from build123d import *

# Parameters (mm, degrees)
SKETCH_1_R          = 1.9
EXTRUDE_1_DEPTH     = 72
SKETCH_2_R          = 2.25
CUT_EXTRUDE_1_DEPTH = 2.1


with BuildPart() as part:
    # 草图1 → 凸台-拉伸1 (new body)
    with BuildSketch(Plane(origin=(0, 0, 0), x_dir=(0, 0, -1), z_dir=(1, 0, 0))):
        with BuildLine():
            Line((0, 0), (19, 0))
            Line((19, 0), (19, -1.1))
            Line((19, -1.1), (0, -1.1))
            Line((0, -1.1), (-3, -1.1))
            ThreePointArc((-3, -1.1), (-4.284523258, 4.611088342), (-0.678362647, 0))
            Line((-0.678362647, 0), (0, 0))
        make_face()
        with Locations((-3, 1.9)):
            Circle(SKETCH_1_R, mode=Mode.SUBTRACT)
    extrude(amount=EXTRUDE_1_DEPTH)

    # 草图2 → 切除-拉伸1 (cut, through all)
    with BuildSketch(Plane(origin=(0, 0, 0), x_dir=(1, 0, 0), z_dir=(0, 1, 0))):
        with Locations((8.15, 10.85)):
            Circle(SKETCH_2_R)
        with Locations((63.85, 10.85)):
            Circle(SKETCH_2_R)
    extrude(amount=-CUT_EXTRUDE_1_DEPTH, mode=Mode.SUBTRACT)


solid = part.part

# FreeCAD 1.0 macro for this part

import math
import FreeCAD as App
import Part
import Sketcher

doc = App.newDocument("Part")
body = doc.addObject("PartDesign::Body", "Body")

# Sketch on YZ plane
sketch1 = doc.addObject("Sketcher::SketchObject", "Sketch")
body.addObject(sketch1)
sketch1.AttachmentSupport = (doc.YZ_Plane, [""])
sketch1.MapMode = "FlatFace"
sketch1.addGeometry([
    Part.LineSegment(App.Vector(-1.1, -19, 0), App.Vector(0, -19, 0)),  # 0
    Part.LineSegment(App.Vector(0, -19, 0), App.Vector(0, 0.7, 0)),  # 1
    Part.ArcOfCircle(Part.Circle(App.Vector(1.9, 3, 0), App.Vector(0, 0, 1), 3), math.radians(-129), math.radians(180)),  # 2
    Part.LineSegment(App.Vector(-1.1, 3, 0), App.Vector(-1.1, -19, 0)),  # 3
    Part.Circle(App.Vector(1.9, 3, 0), App.Vector(0, 0, 1), 1.9),  # 4
], False)
sketch1.addConstraint([
    Sketcher.Constraint("Coincident", 0, 2, 1, 1),
    Sketcher.Constraint("Coincident", 1, 2, 2, 1),
    Sketcher.Constraint("Tangent", 2, 2, 3, 1),
    Sketcher.Constraint("Coincident", 3, 2, 0, 1),
    Sketcher.Constraint("Horizontal", 0),
    Sketcher.Constraint("Vertical", 1),
    Sketcher.Constraint("Vertical", 3),
    Sketcher.Constraint("Coincident", 4, 3, 2, 3),
    Sketcher.Constraint("PointOnObject", 0, 2, -2),
    Sketcher.Constraint("Radius", 2, 3.0),
    Sketcher.Constraint("Diameter", 4, 3.8),
    Sketcher.Constraint("DistanceY", 3, 2, 3, 1, 22.0),
    Sketcher.Constraint("DistanceX", 0, 1, 0, 2, 1.1),
    Sketcher.Constraint("DistanceY", -1, 1, 2, 3, 3.0),
])
pad1 = doc.addObject("PartDesign::Pad", "Pad")
body.addObject(pad1)
pad1.Profile = sketch1
pad1.Length = 72

# Sketch on XZ plane
sketch2 = doc.addObject("Sketcher::SketchObject", "Sketch001")
body.addObject(sketch2)
sketch2.AttachmentSupport = (doc.XZ_Plane, [""])
sketch2.MapMode = "FlatFace"
sketch2.addGeometry([
    Part.Circle(App.Vector(8.2, -10.8, 0), App.Vector(0, 0, 1), 2.2),
    Part.Circle(App.Vector(63.9, -10.8, 0), App.Vector(0, 0, 1), 2.2),
], False)
sketch2.addConstraint([
    Sketcher.Constraint("Equal", 0, 1),
    Sketcher.Constraint("Horizontal", 0, 3, 1, 3),
    Sketcher.Constraint("Diameter", 0, 4.5),
    Sketcher.Constraint("DistanceX", 0, 3, 1, 3, 55.7),
    Sketcher.Constraint("DistanceX", -1, 1, 0, 3, 8.15),
    Sketcher.Constraint("DistanceY", 0, 3, -1, 1, 10.85),
])
pocket1 = doc.addObject("PartDesign::Pocket", "Pocket")
body.addObject(pocket1)
pocket1.Profile = sketch2
pocket1.Type = "ThroughAll"
pocket1.Reversed = True

doc.recompute()
